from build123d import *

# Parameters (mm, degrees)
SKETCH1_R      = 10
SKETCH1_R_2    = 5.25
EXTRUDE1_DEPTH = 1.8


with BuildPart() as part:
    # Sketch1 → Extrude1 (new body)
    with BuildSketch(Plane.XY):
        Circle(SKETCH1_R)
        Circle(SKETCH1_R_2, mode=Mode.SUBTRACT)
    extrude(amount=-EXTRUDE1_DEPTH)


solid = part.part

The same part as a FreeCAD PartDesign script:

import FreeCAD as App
import Part
import Sketcher

V = App.Vector
Q = App.Units.Quantity

doc = App.newDocument("Part")
params = doc.addObject("Spreadsheet::Sheet", "Params")
for row, (alias, value) in enumerate([
    ("sketch1_diameter", "20 mm"),
    ("sketch1_diameter2", "10.5 mm"),
    ("pad1_length", "1.8 mm"),
], start=1):
    params.set(f"A{row}", alias)
    params.set(f"B{row}", "=" + value)
    params.setAlias(f"B{row}", alias)

body = doc.addObject("PartDesign::Body", "Body")

# Sketch on XY plane
sketch1 = body.newObject("Sketcher::SketchObject", "Sketch")
sketch1.AttachmentSupport = (doc.getObject("XY_Plane"), [""])
sketch1.MapMode = "FlatFace"
sketch1.addGeometry([
    Part.Circle(V(0, 0, 0), V(0, 0, 1), 10),
    Part.Circle(V(0, 0, 0), V(0, 0, 1), 5.25),
], False)
sketch1.addConstraint([
    Sketcher.Constraint("Coincident", 0, 3, -1, 1),
    Sketcher.Constraint("Coincident", 1, 3, -1, 1),
    Sketcher.Constraint("Diameter", 0, Q("20 mm")),
    Sketcher.Constraint("Diameter", 1, Q("10.5 mm")),
])
sketch1.setExpression("Constraints[2]", "Params.sketch1_diameter")
sketch1.setExpression("Constraints[3]", "Params.sketch1_diameter2")
pad1 = body.newObject("PartDesign::Pad", "Pad")
pad1.Profile = sketch1
pad1.setExpression("Length", "Params.pad1_length")
pad1.Reversed = True

doc.recompute()
